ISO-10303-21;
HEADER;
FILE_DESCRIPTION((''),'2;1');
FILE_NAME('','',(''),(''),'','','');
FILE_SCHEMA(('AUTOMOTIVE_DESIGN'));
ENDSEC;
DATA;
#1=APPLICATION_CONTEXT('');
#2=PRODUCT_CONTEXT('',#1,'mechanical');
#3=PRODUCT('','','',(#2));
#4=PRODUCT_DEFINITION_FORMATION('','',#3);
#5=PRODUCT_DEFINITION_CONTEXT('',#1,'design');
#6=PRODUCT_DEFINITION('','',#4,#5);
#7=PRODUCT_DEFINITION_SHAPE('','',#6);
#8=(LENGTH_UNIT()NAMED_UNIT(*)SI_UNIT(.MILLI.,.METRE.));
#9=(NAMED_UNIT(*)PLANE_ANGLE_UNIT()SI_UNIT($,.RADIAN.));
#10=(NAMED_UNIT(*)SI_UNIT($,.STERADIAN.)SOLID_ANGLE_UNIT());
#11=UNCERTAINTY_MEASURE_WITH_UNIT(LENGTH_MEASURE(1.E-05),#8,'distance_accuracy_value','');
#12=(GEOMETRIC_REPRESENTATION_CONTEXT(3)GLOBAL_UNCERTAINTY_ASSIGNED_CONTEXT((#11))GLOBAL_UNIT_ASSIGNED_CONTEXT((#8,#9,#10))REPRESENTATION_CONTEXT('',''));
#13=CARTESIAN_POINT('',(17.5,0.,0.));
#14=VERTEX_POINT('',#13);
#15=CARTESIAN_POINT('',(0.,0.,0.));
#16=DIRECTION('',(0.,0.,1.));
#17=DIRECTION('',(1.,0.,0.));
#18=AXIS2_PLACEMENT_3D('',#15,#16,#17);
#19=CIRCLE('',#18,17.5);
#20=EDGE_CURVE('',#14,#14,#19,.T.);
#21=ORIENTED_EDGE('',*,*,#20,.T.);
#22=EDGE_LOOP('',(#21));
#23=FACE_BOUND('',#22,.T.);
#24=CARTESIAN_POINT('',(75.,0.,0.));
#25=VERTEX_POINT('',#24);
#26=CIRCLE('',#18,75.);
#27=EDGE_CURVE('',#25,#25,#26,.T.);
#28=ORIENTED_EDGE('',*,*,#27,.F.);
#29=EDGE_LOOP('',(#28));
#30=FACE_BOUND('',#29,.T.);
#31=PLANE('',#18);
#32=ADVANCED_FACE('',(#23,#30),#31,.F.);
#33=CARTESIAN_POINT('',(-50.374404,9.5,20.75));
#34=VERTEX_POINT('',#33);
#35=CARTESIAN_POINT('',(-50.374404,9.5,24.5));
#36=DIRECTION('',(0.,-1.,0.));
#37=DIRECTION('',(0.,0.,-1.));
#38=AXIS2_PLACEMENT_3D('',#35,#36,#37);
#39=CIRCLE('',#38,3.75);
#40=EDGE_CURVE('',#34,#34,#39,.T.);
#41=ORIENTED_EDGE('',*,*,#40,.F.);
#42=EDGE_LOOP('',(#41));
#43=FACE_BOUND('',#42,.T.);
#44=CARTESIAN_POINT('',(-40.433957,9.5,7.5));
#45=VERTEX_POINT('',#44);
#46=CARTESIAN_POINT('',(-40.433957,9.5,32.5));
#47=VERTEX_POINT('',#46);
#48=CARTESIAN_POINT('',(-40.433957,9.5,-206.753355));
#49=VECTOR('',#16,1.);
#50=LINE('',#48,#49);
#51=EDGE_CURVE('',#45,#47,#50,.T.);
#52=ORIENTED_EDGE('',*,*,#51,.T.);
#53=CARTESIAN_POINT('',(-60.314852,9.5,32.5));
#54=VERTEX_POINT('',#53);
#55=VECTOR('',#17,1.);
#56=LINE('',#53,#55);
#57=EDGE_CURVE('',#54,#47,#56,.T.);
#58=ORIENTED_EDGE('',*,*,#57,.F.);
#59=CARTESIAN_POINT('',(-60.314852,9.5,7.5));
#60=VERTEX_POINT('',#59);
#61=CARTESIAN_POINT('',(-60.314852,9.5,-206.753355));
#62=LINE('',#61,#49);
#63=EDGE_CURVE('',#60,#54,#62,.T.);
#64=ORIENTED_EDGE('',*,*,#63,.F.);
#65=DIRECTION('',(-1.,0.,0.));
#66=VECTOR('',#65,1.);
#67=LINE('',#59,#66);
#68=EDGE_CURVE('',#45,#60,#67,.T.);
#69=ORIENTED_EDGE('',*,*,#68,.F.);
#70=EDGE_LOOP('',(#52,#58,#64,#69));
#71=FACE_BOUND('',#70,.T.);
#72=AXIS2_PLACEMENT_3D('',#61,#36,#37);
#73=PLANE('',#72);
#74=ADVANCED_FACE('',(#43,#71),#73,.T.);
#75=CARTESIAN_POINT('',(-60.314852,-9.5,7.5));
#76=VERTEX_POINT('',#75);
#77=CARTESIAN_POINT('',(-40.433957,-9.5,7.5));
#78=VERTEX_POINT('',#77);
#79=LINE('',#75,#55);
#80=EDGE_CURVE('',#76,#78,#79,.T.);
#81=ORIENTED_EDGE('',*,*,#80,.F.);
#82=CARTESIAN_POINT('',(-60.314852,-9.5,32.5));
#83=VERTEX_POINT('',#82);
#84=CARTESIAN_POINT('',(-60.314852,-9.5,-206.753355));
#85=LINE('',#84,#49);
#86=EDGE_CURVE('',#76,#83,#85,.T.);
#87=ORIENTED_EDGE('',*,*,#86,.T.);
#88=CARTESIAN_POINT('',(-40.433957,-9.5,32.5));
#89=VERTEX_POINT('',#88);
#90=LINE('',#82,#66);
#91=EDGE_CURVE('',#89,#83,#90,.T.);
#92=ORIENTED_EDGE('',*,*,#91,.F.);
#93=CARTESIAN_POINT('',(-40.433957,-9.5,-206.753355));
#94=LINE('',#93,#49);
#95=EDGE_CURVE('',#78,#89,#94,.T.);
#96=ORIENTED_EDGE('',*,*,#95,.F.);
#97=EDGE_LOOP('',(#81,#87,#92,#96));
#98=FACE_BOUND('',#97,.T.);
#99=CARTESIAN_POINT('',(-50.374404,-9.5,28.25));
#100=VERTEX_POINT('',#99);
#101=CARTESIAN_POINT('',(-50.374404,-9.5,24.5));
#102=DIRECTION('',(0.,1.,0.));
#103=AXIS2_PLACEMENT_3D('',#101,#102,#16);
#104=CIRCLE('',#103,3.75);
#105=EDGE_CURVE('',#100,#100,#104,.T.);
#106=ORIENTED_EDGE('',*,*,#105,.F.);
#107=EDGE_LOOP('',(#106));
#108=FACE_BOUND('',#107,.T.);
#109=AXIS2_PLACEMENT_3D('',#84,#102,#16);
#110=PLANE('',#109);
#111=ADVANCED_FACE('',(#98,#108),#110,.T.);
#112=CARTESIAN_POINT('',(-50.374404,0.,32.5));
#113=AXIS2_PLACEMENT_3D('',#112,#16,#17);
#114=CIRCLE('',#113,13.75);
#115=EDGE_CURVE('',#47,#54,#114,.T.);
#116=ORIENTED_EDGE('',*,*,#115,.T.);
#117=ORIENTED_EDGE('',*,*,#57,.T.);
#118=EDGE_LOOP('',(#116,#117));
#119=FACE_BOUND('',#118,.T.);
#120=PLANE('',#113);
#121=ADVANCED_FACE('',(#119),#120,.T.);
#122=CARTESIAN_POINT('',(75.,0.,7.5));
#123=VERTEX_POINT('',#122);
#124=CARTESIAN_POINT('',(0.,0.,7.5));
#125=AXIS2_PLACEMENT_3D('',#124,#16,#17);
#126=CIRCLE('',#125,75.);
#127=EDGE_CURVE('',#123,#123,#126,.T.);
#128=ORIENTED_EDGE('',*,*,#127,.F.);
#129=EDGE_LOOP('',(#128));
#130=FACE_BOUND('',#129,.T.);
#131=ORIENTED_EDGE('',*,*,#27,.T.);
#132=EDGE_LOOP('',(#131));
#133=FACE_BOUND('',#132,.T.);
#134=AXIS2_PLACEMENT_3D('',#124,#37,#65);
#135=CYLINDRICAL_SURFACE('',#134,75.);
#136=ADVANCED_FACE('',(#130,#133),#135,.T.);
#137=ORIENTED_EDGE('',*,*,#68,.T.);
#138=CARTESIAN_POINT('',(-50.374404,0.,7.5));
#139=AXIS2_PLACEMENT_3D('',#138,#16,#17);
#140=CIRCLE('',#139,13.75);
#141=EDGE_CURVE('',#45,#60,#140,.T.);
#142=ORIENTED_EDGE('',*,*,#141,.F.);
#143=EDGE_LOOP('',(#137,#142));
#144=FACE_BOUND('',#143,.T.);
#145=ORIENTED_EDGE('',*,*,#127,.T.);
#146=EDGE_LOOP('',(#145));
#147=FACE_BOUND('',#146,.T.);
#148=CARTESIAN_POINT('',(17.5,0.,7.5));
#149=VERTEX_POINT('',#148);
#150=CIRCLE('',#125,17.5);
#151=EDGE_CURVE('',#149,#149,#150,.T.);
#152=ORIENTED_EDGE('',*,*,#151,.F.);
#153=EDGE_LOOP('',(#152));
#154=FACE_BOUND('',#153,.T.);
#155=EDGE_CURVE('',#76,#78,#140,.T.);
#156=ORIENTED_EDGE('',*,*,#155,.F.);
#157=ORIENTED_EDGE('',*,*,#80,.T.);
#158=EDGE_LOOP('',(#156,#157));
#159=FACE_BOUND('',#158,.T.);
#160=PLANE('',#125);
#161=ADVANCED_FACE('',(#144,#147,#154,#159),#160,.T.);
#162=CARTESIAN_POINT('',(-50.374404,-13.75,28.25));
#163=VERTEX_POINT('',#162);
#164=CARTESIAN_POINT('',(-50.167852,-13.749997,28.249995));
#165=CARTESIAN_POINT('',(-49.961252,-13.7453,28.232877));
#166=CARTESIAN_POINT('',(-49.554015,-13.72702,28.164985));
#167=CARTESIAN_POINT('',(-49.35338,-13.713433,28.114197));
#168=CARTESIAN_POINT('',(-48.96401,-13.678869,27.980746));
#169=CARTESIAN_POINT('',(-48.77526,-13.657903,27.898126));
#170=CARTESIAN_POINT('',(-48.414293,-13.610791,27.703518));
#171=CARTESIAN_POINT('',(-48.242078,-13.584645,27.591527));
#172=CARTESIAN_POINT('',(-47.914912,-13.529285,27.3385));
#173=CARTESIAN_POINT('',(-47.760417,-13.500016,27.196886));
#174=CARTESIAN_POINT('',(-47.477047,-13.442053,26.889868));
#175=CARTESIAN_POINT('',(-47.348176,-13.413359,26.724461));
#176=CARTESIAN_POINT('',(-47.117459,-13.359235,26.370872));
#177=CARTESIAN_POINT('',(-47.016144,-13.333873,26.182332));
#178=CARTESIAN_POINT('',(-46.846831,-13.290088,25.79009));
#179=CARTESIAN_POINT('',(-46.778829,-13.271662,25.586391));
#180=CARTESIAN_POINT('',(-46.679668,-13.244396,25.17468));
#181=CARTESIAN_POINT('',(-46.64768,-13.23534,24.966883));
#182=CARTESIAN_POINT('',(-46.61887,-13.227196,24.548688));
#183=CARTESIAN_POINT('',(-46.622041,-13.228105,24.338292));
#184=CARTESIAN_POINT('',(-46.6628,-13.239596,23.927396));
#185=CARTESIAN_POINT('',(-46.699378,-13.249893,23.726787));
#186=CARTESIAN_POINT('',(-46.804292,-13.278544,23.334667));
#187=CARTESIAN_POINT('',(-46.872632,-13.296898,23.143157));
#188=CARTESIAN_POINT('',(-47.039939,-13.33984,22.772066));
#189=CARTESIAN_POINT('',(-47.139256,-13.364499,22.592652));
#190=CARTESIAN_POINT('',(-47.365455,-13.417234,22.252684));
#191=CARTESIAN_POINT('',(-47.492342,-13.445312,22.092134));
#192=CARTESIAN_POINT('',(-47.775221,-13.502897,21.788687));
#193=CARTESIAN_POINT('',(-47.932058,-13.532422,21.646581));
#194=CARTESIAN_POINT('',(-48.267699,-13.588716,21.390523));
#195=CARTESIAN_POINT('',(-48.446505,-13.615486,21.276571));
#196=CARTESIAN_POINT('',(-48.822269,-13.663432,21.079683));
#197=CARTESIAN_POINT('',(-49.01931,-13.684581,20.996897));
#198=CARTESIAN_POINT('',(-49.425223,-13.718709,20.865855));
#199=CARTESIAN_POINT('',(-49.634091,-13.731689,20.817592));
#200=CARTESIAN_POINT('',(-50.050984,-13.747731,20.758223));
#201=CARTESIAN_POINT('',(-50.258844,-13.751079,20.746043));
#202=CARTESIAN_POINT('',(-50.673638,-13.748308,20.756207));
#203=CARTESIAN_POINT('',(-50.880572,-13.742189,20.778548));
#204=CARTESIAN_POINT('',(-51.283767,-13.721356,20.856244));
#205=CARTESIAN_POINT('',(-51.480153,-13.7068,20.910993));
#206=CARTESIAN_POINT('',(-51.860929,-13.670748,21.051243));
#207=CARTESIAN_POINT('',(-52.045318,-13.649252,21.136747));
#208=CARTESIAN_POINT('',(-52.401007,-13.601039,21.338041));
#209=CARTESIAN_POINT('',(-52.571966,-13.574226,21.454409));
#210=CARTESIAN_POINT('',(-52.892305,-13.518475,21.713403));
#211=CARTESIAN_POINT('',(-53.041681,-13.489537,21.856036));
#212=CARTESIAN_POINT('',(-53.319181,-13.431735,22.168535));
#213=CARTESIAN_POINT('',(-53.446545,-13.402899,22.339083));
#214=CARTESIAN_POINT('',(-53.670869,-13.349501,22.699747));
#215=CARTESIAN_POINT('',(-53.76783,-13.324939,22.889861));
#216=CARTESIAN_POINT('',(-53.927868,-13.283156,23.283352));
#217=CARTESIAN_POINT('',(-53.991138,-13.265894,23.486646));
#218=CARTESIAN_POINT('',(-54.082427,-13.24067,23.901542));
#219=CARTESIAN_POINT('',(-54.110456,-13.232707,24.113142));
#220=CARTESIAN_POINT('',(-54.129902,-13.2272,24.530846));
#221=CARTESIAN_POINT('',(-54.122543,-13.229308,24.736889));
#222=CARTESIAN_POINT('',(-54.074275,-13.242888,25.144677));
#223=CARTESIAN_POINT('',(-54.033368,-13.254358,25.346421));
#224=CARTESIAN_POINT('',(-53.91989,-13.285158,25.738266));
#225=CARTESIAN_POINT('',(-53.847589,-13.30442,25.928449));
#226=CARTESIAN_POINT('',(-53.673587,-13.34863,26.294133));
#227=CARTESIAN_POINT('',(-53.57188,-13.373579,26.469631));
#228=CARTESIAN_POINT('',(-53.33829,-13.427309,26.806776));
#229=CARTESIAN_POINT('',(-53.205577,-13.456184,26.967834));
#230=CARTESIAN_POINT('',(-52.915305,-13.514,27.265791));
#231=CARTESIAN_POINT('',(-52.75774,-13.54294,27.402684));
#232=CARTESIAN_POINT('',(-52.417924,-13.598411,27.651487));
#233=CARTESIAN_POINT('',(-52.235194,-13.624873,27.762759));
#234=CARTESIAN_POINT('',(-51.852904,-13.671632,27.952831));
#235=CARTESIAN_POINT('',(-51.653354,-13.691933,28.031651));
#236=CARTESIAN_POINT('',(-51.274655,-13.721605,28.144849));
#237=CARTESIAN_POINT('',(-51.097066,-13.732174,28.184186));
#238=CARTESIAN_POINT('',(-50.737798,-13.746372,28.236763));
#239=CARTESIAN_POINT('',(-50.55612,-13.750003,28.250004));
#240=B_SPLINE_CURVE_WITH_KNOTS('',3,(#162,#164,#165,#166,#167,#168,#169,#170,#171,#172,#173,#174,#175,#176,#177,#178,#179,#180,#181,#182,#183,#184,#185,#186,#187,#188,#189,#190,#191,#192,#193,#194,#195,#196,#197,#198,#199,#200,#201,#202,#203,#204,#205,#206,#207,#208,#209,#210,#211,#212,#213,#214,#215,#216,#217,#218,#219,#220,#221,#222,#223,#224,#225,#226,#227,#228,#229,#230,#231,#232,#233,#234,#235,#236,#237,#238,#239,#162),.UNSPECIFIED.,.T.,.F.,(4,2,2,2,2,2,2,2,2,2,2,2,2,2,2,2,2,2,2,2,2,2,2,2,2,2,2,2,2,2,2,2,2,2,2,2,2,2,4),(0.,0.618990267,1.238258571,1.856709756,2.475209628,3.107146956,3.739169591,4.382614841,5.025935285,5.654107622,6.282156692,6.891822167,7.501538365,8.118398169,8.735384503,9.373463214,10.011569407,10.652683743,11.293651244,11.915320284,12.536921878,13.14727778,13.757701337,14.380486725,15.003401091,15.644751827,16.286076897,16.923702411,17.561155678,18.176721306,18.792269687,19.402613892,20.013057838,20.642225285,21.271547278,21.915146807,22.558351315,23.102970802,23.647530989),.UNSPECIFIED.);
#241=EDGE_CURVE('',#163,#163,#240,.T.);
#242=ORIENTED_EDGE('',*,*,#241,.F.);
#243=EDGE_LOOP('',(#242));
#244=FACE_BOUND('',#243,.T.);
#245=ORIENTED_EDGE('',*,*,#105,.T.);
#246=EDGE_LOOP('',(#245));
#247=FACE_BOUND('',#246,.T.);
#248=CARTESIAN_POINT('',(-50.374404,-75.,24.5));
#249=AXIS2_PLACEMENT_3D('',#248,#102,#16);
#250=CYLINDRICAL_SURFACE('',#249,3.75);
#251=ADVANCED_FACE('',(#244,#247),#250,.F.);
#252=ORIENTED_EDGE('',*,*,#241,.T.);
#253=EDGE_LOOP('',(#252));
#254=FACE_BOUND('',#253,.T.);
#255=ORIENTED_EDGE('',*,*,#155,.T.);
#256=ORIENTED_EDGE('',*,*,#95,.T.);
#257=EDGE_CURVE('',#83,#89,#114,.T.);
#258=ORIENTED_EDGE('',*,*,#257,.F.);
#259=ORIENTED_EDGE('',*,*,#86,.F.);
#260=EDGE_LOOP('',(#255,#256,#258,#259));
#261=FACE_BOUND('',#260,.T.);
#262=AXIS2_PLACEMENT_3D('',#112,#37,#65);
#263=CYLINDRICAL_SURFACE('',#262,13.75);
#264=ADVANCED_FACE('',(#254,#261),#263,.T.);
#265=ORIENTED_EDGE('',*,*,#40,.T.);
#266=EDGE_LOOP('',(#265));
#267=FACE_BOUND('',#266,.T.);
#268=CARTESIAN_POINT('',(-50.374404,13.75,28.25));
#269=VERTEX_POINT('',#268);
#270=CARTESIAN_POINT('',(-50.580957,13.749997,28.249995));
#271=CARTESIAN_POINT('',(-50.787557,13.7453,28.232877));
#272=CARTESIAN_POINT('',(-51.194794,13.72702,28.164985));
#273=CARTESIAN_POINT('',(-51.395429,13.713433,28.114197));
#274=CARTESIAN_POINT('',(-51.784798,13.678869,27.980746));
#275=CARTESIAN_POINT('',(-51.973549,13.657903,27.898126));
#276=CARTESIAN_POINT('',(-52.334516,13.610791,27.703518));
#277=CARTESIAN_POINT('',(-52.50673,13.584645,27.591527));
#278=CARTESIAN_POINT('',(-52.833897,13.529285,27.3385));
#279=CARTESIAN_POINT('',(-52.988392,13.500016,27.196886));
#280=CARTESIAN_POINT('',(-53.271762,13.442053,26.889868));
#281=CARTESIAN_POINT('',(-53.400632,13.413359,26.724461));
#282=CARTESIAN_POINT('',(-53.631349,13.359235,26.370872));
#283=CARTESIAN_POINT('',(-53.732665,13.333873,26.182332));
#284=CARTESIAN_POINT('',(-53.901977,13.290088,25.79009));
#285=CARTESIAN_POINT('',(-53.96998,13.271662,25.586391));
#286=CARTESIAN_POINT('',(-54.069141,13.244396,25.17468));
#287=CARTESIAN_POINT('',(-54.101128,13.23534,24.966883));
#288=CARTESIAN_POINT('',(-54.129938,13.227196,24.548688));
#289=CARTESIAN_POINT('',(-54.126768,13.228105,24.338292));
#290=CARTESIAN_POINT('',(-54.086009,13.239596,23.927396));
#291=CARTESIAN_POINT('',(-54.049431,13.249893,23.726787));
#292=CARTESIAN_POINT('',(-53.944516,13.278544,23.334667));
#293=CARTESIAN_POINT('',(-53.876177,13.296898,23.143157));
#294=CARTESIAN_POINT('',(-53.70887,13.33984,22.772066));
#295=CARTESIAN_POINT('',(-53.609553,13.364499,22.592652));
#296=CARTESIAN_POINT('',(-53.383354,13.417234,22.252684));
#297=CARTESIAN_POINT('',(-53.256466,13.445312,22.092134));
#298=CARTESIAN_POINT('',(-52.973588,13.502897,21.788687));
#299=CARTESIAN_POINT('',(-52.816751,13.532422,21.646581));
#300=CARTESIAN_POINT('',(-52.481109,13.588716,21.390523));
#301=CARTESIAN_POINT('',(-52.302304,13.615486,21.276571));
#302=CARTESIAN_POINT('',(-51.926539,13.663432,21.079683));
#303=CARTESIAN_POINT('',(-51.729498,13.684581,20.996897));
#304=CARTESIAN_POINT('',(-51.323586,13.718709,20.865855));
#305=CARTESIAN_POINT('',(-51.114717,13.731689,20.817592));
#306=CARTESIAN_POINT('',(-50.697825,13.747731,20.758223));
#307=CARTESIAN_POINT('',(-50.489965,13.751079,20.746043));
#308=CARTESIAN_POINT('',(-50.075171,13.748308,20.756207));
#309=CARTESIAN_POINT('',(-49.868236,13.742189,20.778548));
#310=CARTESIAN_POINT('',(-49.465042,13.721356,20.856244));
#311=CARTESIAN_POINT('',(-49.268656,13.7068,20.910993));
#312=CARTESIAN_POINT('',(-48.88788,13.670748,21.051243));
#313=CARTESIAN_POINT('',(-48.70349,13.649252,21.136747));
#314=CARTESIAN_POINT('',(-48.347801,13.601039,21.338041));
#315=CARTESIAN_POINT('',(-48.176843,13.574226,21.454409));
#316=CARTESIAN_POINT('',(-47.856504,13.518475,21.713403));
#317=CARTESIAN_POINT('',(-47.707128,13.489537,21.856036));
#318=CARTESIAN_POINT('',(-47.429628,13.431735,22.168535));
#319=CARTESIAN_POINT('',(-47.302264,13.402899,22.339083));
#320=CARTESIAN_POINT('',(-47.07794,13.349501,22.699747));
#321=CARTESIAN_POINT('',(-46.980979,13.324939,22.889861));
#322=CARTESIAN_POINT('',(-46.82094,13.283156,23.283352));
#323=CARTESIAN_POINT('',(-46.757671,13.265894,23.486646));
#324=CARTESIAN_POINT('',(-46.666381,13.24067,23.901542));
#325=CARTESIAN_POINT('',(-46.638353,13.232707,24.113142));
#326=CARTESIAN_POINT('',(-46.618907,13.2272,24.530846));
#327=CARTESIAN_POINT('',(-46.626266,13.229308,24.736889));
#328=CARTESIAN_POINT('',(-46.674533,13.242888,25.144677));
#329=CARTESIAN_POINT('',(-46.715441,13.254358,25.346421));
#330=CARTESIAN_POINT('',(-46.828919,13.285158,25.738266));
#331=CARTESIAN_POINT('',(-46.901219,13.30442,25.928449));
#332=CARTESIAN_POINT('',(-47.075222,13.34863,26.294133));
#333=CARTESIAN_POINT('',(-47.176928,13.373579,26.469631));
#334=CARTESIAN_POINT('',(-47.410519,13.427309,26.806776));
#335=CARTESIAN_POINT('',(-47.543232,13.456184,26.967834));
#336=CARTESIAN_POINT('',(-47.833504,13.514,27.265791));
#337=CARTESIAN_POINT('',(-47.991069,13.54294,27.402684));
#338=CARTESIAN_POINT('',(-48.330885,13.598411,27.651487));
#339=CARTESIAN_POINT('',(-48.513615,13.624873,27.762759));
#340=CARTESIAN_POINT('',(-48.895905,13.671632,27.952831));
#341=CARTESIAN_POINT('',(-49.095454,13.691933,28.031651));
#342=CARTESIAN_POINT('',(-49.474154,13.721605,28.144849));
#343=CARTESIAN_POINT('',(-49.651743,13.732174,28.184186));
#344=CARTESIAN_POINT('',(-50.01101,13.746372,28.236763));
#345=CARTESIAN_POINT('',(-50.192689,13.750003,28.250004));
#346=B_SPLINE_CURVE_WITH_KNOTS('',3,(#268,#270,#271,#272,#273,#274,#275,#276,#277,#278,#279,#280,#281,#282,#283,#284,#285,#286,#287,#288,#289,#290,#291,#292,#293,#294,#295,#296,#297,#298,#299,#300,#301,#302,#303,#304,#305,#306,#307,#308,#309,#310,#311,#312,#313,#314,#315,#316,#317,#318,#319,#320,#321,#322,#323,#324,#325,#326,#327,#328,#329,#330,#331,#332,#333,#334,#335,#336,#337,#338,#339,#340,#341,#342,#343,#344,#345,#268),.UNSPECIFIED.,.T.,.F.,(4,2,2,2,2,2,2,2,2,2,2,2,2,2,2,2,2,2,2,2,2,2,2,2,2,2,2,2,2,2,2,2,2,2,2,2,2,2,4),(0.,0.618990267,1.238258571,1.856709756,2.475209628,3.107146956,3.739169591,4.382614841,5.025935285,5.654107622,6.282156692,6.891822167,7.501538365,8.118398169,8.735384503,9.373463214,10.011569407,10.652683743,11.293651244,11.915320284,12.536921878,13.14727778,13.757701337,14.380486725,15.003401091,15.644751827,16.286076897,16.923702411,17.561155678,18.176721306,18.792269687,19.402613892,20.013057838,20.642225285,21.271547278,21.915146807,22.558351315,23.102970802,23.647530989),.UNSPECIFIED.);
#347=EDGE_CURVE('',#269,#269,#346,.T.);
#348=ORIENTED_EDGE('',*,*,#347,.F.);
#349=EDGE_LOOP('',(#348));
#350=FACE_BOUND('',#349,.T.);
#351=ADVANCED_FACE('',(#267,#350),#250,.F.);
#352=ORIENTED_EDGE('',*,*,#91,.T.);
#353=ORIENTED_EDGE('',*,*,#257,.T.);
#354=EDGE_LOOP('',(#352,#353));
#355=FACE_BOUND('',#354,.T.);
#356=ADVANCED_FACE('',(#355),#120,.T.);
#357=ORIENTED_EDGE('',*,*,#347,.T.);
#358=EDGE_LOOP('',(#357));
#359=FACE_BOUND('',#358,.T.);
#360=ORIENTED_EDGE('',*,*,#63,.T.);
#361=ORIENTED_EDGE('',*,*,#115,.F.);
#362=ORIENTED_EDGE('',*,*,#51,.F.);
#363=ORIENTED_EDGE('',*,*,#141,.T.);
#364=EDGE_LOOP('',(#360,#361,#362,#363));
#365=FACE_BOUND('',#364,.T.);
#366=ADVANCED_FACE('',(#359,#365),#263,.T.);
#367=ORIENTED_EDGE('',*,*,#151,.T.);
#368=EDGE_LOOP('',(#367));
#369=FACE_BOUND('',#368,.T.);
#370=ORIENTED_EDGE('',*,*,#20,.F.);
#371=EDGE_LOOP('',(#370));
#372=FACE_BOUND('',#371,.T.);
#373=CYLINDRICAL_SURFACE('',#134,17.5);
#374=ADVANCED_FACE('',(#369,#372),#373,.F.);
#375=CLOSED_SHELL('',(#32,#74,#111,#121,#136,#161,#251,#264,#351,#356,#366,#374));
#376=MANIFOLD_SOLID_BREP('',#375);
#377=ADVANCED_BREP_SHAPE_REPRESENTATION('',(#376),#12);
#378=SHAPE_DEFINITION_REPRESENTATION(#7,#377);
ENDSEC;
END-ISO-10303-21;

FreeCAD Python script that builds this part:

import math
import FreeCAD as App
import Part
import Sketcher

V = App.Vector


def add_polygon(sketch, points):
    """Adds a closed chain of lines whose ends are joined by coincident constraints."""
    first, n = sketch.GeometryCount, len(points)
    for a, b in zip(points, points[1:] + points[:1]):
        sketch.addGeometry(Part.LineSegment(App.Vector(*a, 0), App.Vector(*b, 0)), False)
    for i in range(n):
        sketch.addConstraint(Sketcher.Constraint("Coincident", first + i, 2, first + (i + 1) % n, 1))

doc = App.newDocument("Part")
body = doc.addObject("PartDesign::Body", "Body")

# Sketch on XY plane
sketch1 = doc.addObject("Sketcher::SketchObject", "Sketch")
body.addObject(sketch1)
sketch1.AttachmentSupport = (doc.XY_Plane, [""])
sketch1.MapMode = "FlatFace"
sketch1.addGeometry(Part.Circle(V(0, 0, 0), V(0, 0, 1), 75), False)
sketch1.addGeometry(Part.Circle(V(0, 0, 0), V(0, 0, 1), 18), False)
sketch1.addConstraint(Sketcher.Constraint("Coincident", 0, 3, -1, 1))
sketch1.addConstraint(Sketcher.Constraint("Coincident", 1, 3, -1, 1))
sketch1.addConstraint(Sketcher.Constraint("Diameter", 0, 150.0))
sketch1.addConstraint(Sketcher.Constraint("Diameter", 1, 35.0))
pad1 = doc.addObject("PartDesign::Pad", "Pad")
body.addObject(pad1)
pad1.Profile = sketch1
pad1.Length = 7.5

# Sketch on XY plane
sketch2 = doc.addObject("Sketcher::SketchObject", "Sketch001")
body.addObject(sketch2)
sketch2.AttachmentSupport = (doc.XY_Plane, [""])
sketch2.MapMode = "FlatFace"
sketch2.AttachmentOffset = App.Placement(V(0, 0, 7.5), App.Rotation())
sketch2.addGeometry(Part.Circle(V(-50, 0, 0), V(0, 0, 1), 14), False)
sketch2.addConstraint(Sketcher.Constraint("PointOnObject", 0, 3, -1))
sketch2.addConstraint(Sketcher.Constraint("Diameter", 0, 27.5))
sketch2.addConstraint(Sketcher.Constraint("DistanceX", 0, 3, -1, 1, 50.374404))
pad2 = doc.addObject("PartDesign::Pad", "Pad001")
body.addObject(pad2)
pad2.Profile = sketch2
pad2.Length = 25

# Sketch on XY plane
sketch3 = doc.addObject("Sketcher::SketchObject", "Sketch002")
body.addObject(sketch3)
sketch3.AttachmentSupport = (doc.XY_Plane, [""])
sketch3.MapMode = "FlatFace"
sketch3.AttachmentOffset = App.Placement(V(0, 0, 32.5), App.Rotation())
add_polygon(sketch3, [(-97, 97), (-97, -97), (97, -97), (97, 97)])  # lines 0-3
sketch3.addGeometry(Part.ArcOfCircle(Part.Circle(V(-50, 0, 0), V(0, 0, 1), 14), math.radians(-136), math.radians(-44)), False)  # 4
sketch3.addGeometry(Part.LineSegment(V(-60, -10, 0), V(-40, -10, 0)), False)  # 5
sketch3.addGeometry(Part.LineSegment(V(-40, 10, 0), V(-60, 10, 0)), False)  # 6
sketch3.addGeometry(Part.ArcOfCircle(Part.Circle(V(-50, 0, 0), V(0, 0, 1), 14), math.radians(44), math.radians(136)), False)  # 7
sketch3.addConstraint(Sketcher.Constraint("Coincident", 4, 1, 5, 1))
sketch3.addConstraint(Sketcher.Constraint("Coincident", 5, 2, 4, 2))
sketch3.addConstraint(Sketcher.Constraint("Coincident", 6, 1, 7, 1))
sketch3.addConstraint(Sketcher.Constraint("Coincident", 7, 2, 6, 2))
sketch3.addConstraint(Sketcher.Constraint("Vertical", 0))
sketch3.addConstraint(Sketcher.Constraint("Horizontal", 1))
sketch3.addConstraint(Sketcher.Constraint("Vertical", 2))
sketch3.addConstraint(Sketcher.Constraint("Horizontal", 3))
sketch3.addConstraint(Sketcher.Constraint("Horizontal", 5))
sketch3.addConstraint(Sketcher.Constraint("Horizontal", 6))
sketch3.addConstraint(Sketcher.Constraint("Coincident", 7, 3, 4, 3))
sketch3.addConstraint(Sketcher.Constraint("Equal", 4, 7))
sketch3.addConstraint(Sketcher.Constraint("Symmetric", 0, 2, 2, 2, -1, 1))
sketch3.addConstraint(Sketcher.Constraint("Symmetric", 5, 2, 6, 1, -1))
sketch3.addConstraint(Sketcher.Constraint("Equal", 3, 0))
sketch3.addConstraint(Sketcher.Constraint("Radius", 4, 13.75))
sketch3.addConstraint(Sketcher.Constraint("DistanceY", 5, 2, 6, 1, 19.0))
sketch3.addConstraint(Sketcher.Constraint("DistanceX", 1, 1, 1, 2, 194.922))
sketch3.addConstraint(Sketcher.Constraint("DistanceX", 4, 3, -1, 1, 50.374404))
pocket1 = doc.addObject("PartDesign::Pocket", "Pocket")
body.addObject(pocket1)
pocket1.Profile = sketch3
pocket1.Length = 25

# Sketch on XZ plane
sketch4 = doc.addObject("Sketcher::SketchObject", "Sketch003")
body.addObject(sketch4)
sketch4.AttachmentSupport = (doc.XZ_Plane, [""])
sketch4.MapMode = "FlatFace"
sketch4.AttachmentOffset = App.Placement(V(0, 0, 9.5), App.Rotation())
sketch4.addGeometry(Part.Circle(V(-50.4, 24.5, 0), V(0, 0, 1), 3.8), False)
sketch4.addConstraint(Sketcher.Constraint("Diameter", 0, 7.5))
sketch4.addConstraint(Sketcher.Constraint("DistanceY", -1, 1, 0, 3, 24.5))
sketch4.addConstraint(Sketcher.Constraint("DistanceX", 0, 3, -1, 1, 50.374404))
pocket2 = doc.addObject("PartDesign::Pocket", "Pocket001")
body.addObject(pocket2)
pocket2.Profile = sketch4
pocket2.Type = "ThroughAll"
pocket2.Midplane = True

doc.recompute()
